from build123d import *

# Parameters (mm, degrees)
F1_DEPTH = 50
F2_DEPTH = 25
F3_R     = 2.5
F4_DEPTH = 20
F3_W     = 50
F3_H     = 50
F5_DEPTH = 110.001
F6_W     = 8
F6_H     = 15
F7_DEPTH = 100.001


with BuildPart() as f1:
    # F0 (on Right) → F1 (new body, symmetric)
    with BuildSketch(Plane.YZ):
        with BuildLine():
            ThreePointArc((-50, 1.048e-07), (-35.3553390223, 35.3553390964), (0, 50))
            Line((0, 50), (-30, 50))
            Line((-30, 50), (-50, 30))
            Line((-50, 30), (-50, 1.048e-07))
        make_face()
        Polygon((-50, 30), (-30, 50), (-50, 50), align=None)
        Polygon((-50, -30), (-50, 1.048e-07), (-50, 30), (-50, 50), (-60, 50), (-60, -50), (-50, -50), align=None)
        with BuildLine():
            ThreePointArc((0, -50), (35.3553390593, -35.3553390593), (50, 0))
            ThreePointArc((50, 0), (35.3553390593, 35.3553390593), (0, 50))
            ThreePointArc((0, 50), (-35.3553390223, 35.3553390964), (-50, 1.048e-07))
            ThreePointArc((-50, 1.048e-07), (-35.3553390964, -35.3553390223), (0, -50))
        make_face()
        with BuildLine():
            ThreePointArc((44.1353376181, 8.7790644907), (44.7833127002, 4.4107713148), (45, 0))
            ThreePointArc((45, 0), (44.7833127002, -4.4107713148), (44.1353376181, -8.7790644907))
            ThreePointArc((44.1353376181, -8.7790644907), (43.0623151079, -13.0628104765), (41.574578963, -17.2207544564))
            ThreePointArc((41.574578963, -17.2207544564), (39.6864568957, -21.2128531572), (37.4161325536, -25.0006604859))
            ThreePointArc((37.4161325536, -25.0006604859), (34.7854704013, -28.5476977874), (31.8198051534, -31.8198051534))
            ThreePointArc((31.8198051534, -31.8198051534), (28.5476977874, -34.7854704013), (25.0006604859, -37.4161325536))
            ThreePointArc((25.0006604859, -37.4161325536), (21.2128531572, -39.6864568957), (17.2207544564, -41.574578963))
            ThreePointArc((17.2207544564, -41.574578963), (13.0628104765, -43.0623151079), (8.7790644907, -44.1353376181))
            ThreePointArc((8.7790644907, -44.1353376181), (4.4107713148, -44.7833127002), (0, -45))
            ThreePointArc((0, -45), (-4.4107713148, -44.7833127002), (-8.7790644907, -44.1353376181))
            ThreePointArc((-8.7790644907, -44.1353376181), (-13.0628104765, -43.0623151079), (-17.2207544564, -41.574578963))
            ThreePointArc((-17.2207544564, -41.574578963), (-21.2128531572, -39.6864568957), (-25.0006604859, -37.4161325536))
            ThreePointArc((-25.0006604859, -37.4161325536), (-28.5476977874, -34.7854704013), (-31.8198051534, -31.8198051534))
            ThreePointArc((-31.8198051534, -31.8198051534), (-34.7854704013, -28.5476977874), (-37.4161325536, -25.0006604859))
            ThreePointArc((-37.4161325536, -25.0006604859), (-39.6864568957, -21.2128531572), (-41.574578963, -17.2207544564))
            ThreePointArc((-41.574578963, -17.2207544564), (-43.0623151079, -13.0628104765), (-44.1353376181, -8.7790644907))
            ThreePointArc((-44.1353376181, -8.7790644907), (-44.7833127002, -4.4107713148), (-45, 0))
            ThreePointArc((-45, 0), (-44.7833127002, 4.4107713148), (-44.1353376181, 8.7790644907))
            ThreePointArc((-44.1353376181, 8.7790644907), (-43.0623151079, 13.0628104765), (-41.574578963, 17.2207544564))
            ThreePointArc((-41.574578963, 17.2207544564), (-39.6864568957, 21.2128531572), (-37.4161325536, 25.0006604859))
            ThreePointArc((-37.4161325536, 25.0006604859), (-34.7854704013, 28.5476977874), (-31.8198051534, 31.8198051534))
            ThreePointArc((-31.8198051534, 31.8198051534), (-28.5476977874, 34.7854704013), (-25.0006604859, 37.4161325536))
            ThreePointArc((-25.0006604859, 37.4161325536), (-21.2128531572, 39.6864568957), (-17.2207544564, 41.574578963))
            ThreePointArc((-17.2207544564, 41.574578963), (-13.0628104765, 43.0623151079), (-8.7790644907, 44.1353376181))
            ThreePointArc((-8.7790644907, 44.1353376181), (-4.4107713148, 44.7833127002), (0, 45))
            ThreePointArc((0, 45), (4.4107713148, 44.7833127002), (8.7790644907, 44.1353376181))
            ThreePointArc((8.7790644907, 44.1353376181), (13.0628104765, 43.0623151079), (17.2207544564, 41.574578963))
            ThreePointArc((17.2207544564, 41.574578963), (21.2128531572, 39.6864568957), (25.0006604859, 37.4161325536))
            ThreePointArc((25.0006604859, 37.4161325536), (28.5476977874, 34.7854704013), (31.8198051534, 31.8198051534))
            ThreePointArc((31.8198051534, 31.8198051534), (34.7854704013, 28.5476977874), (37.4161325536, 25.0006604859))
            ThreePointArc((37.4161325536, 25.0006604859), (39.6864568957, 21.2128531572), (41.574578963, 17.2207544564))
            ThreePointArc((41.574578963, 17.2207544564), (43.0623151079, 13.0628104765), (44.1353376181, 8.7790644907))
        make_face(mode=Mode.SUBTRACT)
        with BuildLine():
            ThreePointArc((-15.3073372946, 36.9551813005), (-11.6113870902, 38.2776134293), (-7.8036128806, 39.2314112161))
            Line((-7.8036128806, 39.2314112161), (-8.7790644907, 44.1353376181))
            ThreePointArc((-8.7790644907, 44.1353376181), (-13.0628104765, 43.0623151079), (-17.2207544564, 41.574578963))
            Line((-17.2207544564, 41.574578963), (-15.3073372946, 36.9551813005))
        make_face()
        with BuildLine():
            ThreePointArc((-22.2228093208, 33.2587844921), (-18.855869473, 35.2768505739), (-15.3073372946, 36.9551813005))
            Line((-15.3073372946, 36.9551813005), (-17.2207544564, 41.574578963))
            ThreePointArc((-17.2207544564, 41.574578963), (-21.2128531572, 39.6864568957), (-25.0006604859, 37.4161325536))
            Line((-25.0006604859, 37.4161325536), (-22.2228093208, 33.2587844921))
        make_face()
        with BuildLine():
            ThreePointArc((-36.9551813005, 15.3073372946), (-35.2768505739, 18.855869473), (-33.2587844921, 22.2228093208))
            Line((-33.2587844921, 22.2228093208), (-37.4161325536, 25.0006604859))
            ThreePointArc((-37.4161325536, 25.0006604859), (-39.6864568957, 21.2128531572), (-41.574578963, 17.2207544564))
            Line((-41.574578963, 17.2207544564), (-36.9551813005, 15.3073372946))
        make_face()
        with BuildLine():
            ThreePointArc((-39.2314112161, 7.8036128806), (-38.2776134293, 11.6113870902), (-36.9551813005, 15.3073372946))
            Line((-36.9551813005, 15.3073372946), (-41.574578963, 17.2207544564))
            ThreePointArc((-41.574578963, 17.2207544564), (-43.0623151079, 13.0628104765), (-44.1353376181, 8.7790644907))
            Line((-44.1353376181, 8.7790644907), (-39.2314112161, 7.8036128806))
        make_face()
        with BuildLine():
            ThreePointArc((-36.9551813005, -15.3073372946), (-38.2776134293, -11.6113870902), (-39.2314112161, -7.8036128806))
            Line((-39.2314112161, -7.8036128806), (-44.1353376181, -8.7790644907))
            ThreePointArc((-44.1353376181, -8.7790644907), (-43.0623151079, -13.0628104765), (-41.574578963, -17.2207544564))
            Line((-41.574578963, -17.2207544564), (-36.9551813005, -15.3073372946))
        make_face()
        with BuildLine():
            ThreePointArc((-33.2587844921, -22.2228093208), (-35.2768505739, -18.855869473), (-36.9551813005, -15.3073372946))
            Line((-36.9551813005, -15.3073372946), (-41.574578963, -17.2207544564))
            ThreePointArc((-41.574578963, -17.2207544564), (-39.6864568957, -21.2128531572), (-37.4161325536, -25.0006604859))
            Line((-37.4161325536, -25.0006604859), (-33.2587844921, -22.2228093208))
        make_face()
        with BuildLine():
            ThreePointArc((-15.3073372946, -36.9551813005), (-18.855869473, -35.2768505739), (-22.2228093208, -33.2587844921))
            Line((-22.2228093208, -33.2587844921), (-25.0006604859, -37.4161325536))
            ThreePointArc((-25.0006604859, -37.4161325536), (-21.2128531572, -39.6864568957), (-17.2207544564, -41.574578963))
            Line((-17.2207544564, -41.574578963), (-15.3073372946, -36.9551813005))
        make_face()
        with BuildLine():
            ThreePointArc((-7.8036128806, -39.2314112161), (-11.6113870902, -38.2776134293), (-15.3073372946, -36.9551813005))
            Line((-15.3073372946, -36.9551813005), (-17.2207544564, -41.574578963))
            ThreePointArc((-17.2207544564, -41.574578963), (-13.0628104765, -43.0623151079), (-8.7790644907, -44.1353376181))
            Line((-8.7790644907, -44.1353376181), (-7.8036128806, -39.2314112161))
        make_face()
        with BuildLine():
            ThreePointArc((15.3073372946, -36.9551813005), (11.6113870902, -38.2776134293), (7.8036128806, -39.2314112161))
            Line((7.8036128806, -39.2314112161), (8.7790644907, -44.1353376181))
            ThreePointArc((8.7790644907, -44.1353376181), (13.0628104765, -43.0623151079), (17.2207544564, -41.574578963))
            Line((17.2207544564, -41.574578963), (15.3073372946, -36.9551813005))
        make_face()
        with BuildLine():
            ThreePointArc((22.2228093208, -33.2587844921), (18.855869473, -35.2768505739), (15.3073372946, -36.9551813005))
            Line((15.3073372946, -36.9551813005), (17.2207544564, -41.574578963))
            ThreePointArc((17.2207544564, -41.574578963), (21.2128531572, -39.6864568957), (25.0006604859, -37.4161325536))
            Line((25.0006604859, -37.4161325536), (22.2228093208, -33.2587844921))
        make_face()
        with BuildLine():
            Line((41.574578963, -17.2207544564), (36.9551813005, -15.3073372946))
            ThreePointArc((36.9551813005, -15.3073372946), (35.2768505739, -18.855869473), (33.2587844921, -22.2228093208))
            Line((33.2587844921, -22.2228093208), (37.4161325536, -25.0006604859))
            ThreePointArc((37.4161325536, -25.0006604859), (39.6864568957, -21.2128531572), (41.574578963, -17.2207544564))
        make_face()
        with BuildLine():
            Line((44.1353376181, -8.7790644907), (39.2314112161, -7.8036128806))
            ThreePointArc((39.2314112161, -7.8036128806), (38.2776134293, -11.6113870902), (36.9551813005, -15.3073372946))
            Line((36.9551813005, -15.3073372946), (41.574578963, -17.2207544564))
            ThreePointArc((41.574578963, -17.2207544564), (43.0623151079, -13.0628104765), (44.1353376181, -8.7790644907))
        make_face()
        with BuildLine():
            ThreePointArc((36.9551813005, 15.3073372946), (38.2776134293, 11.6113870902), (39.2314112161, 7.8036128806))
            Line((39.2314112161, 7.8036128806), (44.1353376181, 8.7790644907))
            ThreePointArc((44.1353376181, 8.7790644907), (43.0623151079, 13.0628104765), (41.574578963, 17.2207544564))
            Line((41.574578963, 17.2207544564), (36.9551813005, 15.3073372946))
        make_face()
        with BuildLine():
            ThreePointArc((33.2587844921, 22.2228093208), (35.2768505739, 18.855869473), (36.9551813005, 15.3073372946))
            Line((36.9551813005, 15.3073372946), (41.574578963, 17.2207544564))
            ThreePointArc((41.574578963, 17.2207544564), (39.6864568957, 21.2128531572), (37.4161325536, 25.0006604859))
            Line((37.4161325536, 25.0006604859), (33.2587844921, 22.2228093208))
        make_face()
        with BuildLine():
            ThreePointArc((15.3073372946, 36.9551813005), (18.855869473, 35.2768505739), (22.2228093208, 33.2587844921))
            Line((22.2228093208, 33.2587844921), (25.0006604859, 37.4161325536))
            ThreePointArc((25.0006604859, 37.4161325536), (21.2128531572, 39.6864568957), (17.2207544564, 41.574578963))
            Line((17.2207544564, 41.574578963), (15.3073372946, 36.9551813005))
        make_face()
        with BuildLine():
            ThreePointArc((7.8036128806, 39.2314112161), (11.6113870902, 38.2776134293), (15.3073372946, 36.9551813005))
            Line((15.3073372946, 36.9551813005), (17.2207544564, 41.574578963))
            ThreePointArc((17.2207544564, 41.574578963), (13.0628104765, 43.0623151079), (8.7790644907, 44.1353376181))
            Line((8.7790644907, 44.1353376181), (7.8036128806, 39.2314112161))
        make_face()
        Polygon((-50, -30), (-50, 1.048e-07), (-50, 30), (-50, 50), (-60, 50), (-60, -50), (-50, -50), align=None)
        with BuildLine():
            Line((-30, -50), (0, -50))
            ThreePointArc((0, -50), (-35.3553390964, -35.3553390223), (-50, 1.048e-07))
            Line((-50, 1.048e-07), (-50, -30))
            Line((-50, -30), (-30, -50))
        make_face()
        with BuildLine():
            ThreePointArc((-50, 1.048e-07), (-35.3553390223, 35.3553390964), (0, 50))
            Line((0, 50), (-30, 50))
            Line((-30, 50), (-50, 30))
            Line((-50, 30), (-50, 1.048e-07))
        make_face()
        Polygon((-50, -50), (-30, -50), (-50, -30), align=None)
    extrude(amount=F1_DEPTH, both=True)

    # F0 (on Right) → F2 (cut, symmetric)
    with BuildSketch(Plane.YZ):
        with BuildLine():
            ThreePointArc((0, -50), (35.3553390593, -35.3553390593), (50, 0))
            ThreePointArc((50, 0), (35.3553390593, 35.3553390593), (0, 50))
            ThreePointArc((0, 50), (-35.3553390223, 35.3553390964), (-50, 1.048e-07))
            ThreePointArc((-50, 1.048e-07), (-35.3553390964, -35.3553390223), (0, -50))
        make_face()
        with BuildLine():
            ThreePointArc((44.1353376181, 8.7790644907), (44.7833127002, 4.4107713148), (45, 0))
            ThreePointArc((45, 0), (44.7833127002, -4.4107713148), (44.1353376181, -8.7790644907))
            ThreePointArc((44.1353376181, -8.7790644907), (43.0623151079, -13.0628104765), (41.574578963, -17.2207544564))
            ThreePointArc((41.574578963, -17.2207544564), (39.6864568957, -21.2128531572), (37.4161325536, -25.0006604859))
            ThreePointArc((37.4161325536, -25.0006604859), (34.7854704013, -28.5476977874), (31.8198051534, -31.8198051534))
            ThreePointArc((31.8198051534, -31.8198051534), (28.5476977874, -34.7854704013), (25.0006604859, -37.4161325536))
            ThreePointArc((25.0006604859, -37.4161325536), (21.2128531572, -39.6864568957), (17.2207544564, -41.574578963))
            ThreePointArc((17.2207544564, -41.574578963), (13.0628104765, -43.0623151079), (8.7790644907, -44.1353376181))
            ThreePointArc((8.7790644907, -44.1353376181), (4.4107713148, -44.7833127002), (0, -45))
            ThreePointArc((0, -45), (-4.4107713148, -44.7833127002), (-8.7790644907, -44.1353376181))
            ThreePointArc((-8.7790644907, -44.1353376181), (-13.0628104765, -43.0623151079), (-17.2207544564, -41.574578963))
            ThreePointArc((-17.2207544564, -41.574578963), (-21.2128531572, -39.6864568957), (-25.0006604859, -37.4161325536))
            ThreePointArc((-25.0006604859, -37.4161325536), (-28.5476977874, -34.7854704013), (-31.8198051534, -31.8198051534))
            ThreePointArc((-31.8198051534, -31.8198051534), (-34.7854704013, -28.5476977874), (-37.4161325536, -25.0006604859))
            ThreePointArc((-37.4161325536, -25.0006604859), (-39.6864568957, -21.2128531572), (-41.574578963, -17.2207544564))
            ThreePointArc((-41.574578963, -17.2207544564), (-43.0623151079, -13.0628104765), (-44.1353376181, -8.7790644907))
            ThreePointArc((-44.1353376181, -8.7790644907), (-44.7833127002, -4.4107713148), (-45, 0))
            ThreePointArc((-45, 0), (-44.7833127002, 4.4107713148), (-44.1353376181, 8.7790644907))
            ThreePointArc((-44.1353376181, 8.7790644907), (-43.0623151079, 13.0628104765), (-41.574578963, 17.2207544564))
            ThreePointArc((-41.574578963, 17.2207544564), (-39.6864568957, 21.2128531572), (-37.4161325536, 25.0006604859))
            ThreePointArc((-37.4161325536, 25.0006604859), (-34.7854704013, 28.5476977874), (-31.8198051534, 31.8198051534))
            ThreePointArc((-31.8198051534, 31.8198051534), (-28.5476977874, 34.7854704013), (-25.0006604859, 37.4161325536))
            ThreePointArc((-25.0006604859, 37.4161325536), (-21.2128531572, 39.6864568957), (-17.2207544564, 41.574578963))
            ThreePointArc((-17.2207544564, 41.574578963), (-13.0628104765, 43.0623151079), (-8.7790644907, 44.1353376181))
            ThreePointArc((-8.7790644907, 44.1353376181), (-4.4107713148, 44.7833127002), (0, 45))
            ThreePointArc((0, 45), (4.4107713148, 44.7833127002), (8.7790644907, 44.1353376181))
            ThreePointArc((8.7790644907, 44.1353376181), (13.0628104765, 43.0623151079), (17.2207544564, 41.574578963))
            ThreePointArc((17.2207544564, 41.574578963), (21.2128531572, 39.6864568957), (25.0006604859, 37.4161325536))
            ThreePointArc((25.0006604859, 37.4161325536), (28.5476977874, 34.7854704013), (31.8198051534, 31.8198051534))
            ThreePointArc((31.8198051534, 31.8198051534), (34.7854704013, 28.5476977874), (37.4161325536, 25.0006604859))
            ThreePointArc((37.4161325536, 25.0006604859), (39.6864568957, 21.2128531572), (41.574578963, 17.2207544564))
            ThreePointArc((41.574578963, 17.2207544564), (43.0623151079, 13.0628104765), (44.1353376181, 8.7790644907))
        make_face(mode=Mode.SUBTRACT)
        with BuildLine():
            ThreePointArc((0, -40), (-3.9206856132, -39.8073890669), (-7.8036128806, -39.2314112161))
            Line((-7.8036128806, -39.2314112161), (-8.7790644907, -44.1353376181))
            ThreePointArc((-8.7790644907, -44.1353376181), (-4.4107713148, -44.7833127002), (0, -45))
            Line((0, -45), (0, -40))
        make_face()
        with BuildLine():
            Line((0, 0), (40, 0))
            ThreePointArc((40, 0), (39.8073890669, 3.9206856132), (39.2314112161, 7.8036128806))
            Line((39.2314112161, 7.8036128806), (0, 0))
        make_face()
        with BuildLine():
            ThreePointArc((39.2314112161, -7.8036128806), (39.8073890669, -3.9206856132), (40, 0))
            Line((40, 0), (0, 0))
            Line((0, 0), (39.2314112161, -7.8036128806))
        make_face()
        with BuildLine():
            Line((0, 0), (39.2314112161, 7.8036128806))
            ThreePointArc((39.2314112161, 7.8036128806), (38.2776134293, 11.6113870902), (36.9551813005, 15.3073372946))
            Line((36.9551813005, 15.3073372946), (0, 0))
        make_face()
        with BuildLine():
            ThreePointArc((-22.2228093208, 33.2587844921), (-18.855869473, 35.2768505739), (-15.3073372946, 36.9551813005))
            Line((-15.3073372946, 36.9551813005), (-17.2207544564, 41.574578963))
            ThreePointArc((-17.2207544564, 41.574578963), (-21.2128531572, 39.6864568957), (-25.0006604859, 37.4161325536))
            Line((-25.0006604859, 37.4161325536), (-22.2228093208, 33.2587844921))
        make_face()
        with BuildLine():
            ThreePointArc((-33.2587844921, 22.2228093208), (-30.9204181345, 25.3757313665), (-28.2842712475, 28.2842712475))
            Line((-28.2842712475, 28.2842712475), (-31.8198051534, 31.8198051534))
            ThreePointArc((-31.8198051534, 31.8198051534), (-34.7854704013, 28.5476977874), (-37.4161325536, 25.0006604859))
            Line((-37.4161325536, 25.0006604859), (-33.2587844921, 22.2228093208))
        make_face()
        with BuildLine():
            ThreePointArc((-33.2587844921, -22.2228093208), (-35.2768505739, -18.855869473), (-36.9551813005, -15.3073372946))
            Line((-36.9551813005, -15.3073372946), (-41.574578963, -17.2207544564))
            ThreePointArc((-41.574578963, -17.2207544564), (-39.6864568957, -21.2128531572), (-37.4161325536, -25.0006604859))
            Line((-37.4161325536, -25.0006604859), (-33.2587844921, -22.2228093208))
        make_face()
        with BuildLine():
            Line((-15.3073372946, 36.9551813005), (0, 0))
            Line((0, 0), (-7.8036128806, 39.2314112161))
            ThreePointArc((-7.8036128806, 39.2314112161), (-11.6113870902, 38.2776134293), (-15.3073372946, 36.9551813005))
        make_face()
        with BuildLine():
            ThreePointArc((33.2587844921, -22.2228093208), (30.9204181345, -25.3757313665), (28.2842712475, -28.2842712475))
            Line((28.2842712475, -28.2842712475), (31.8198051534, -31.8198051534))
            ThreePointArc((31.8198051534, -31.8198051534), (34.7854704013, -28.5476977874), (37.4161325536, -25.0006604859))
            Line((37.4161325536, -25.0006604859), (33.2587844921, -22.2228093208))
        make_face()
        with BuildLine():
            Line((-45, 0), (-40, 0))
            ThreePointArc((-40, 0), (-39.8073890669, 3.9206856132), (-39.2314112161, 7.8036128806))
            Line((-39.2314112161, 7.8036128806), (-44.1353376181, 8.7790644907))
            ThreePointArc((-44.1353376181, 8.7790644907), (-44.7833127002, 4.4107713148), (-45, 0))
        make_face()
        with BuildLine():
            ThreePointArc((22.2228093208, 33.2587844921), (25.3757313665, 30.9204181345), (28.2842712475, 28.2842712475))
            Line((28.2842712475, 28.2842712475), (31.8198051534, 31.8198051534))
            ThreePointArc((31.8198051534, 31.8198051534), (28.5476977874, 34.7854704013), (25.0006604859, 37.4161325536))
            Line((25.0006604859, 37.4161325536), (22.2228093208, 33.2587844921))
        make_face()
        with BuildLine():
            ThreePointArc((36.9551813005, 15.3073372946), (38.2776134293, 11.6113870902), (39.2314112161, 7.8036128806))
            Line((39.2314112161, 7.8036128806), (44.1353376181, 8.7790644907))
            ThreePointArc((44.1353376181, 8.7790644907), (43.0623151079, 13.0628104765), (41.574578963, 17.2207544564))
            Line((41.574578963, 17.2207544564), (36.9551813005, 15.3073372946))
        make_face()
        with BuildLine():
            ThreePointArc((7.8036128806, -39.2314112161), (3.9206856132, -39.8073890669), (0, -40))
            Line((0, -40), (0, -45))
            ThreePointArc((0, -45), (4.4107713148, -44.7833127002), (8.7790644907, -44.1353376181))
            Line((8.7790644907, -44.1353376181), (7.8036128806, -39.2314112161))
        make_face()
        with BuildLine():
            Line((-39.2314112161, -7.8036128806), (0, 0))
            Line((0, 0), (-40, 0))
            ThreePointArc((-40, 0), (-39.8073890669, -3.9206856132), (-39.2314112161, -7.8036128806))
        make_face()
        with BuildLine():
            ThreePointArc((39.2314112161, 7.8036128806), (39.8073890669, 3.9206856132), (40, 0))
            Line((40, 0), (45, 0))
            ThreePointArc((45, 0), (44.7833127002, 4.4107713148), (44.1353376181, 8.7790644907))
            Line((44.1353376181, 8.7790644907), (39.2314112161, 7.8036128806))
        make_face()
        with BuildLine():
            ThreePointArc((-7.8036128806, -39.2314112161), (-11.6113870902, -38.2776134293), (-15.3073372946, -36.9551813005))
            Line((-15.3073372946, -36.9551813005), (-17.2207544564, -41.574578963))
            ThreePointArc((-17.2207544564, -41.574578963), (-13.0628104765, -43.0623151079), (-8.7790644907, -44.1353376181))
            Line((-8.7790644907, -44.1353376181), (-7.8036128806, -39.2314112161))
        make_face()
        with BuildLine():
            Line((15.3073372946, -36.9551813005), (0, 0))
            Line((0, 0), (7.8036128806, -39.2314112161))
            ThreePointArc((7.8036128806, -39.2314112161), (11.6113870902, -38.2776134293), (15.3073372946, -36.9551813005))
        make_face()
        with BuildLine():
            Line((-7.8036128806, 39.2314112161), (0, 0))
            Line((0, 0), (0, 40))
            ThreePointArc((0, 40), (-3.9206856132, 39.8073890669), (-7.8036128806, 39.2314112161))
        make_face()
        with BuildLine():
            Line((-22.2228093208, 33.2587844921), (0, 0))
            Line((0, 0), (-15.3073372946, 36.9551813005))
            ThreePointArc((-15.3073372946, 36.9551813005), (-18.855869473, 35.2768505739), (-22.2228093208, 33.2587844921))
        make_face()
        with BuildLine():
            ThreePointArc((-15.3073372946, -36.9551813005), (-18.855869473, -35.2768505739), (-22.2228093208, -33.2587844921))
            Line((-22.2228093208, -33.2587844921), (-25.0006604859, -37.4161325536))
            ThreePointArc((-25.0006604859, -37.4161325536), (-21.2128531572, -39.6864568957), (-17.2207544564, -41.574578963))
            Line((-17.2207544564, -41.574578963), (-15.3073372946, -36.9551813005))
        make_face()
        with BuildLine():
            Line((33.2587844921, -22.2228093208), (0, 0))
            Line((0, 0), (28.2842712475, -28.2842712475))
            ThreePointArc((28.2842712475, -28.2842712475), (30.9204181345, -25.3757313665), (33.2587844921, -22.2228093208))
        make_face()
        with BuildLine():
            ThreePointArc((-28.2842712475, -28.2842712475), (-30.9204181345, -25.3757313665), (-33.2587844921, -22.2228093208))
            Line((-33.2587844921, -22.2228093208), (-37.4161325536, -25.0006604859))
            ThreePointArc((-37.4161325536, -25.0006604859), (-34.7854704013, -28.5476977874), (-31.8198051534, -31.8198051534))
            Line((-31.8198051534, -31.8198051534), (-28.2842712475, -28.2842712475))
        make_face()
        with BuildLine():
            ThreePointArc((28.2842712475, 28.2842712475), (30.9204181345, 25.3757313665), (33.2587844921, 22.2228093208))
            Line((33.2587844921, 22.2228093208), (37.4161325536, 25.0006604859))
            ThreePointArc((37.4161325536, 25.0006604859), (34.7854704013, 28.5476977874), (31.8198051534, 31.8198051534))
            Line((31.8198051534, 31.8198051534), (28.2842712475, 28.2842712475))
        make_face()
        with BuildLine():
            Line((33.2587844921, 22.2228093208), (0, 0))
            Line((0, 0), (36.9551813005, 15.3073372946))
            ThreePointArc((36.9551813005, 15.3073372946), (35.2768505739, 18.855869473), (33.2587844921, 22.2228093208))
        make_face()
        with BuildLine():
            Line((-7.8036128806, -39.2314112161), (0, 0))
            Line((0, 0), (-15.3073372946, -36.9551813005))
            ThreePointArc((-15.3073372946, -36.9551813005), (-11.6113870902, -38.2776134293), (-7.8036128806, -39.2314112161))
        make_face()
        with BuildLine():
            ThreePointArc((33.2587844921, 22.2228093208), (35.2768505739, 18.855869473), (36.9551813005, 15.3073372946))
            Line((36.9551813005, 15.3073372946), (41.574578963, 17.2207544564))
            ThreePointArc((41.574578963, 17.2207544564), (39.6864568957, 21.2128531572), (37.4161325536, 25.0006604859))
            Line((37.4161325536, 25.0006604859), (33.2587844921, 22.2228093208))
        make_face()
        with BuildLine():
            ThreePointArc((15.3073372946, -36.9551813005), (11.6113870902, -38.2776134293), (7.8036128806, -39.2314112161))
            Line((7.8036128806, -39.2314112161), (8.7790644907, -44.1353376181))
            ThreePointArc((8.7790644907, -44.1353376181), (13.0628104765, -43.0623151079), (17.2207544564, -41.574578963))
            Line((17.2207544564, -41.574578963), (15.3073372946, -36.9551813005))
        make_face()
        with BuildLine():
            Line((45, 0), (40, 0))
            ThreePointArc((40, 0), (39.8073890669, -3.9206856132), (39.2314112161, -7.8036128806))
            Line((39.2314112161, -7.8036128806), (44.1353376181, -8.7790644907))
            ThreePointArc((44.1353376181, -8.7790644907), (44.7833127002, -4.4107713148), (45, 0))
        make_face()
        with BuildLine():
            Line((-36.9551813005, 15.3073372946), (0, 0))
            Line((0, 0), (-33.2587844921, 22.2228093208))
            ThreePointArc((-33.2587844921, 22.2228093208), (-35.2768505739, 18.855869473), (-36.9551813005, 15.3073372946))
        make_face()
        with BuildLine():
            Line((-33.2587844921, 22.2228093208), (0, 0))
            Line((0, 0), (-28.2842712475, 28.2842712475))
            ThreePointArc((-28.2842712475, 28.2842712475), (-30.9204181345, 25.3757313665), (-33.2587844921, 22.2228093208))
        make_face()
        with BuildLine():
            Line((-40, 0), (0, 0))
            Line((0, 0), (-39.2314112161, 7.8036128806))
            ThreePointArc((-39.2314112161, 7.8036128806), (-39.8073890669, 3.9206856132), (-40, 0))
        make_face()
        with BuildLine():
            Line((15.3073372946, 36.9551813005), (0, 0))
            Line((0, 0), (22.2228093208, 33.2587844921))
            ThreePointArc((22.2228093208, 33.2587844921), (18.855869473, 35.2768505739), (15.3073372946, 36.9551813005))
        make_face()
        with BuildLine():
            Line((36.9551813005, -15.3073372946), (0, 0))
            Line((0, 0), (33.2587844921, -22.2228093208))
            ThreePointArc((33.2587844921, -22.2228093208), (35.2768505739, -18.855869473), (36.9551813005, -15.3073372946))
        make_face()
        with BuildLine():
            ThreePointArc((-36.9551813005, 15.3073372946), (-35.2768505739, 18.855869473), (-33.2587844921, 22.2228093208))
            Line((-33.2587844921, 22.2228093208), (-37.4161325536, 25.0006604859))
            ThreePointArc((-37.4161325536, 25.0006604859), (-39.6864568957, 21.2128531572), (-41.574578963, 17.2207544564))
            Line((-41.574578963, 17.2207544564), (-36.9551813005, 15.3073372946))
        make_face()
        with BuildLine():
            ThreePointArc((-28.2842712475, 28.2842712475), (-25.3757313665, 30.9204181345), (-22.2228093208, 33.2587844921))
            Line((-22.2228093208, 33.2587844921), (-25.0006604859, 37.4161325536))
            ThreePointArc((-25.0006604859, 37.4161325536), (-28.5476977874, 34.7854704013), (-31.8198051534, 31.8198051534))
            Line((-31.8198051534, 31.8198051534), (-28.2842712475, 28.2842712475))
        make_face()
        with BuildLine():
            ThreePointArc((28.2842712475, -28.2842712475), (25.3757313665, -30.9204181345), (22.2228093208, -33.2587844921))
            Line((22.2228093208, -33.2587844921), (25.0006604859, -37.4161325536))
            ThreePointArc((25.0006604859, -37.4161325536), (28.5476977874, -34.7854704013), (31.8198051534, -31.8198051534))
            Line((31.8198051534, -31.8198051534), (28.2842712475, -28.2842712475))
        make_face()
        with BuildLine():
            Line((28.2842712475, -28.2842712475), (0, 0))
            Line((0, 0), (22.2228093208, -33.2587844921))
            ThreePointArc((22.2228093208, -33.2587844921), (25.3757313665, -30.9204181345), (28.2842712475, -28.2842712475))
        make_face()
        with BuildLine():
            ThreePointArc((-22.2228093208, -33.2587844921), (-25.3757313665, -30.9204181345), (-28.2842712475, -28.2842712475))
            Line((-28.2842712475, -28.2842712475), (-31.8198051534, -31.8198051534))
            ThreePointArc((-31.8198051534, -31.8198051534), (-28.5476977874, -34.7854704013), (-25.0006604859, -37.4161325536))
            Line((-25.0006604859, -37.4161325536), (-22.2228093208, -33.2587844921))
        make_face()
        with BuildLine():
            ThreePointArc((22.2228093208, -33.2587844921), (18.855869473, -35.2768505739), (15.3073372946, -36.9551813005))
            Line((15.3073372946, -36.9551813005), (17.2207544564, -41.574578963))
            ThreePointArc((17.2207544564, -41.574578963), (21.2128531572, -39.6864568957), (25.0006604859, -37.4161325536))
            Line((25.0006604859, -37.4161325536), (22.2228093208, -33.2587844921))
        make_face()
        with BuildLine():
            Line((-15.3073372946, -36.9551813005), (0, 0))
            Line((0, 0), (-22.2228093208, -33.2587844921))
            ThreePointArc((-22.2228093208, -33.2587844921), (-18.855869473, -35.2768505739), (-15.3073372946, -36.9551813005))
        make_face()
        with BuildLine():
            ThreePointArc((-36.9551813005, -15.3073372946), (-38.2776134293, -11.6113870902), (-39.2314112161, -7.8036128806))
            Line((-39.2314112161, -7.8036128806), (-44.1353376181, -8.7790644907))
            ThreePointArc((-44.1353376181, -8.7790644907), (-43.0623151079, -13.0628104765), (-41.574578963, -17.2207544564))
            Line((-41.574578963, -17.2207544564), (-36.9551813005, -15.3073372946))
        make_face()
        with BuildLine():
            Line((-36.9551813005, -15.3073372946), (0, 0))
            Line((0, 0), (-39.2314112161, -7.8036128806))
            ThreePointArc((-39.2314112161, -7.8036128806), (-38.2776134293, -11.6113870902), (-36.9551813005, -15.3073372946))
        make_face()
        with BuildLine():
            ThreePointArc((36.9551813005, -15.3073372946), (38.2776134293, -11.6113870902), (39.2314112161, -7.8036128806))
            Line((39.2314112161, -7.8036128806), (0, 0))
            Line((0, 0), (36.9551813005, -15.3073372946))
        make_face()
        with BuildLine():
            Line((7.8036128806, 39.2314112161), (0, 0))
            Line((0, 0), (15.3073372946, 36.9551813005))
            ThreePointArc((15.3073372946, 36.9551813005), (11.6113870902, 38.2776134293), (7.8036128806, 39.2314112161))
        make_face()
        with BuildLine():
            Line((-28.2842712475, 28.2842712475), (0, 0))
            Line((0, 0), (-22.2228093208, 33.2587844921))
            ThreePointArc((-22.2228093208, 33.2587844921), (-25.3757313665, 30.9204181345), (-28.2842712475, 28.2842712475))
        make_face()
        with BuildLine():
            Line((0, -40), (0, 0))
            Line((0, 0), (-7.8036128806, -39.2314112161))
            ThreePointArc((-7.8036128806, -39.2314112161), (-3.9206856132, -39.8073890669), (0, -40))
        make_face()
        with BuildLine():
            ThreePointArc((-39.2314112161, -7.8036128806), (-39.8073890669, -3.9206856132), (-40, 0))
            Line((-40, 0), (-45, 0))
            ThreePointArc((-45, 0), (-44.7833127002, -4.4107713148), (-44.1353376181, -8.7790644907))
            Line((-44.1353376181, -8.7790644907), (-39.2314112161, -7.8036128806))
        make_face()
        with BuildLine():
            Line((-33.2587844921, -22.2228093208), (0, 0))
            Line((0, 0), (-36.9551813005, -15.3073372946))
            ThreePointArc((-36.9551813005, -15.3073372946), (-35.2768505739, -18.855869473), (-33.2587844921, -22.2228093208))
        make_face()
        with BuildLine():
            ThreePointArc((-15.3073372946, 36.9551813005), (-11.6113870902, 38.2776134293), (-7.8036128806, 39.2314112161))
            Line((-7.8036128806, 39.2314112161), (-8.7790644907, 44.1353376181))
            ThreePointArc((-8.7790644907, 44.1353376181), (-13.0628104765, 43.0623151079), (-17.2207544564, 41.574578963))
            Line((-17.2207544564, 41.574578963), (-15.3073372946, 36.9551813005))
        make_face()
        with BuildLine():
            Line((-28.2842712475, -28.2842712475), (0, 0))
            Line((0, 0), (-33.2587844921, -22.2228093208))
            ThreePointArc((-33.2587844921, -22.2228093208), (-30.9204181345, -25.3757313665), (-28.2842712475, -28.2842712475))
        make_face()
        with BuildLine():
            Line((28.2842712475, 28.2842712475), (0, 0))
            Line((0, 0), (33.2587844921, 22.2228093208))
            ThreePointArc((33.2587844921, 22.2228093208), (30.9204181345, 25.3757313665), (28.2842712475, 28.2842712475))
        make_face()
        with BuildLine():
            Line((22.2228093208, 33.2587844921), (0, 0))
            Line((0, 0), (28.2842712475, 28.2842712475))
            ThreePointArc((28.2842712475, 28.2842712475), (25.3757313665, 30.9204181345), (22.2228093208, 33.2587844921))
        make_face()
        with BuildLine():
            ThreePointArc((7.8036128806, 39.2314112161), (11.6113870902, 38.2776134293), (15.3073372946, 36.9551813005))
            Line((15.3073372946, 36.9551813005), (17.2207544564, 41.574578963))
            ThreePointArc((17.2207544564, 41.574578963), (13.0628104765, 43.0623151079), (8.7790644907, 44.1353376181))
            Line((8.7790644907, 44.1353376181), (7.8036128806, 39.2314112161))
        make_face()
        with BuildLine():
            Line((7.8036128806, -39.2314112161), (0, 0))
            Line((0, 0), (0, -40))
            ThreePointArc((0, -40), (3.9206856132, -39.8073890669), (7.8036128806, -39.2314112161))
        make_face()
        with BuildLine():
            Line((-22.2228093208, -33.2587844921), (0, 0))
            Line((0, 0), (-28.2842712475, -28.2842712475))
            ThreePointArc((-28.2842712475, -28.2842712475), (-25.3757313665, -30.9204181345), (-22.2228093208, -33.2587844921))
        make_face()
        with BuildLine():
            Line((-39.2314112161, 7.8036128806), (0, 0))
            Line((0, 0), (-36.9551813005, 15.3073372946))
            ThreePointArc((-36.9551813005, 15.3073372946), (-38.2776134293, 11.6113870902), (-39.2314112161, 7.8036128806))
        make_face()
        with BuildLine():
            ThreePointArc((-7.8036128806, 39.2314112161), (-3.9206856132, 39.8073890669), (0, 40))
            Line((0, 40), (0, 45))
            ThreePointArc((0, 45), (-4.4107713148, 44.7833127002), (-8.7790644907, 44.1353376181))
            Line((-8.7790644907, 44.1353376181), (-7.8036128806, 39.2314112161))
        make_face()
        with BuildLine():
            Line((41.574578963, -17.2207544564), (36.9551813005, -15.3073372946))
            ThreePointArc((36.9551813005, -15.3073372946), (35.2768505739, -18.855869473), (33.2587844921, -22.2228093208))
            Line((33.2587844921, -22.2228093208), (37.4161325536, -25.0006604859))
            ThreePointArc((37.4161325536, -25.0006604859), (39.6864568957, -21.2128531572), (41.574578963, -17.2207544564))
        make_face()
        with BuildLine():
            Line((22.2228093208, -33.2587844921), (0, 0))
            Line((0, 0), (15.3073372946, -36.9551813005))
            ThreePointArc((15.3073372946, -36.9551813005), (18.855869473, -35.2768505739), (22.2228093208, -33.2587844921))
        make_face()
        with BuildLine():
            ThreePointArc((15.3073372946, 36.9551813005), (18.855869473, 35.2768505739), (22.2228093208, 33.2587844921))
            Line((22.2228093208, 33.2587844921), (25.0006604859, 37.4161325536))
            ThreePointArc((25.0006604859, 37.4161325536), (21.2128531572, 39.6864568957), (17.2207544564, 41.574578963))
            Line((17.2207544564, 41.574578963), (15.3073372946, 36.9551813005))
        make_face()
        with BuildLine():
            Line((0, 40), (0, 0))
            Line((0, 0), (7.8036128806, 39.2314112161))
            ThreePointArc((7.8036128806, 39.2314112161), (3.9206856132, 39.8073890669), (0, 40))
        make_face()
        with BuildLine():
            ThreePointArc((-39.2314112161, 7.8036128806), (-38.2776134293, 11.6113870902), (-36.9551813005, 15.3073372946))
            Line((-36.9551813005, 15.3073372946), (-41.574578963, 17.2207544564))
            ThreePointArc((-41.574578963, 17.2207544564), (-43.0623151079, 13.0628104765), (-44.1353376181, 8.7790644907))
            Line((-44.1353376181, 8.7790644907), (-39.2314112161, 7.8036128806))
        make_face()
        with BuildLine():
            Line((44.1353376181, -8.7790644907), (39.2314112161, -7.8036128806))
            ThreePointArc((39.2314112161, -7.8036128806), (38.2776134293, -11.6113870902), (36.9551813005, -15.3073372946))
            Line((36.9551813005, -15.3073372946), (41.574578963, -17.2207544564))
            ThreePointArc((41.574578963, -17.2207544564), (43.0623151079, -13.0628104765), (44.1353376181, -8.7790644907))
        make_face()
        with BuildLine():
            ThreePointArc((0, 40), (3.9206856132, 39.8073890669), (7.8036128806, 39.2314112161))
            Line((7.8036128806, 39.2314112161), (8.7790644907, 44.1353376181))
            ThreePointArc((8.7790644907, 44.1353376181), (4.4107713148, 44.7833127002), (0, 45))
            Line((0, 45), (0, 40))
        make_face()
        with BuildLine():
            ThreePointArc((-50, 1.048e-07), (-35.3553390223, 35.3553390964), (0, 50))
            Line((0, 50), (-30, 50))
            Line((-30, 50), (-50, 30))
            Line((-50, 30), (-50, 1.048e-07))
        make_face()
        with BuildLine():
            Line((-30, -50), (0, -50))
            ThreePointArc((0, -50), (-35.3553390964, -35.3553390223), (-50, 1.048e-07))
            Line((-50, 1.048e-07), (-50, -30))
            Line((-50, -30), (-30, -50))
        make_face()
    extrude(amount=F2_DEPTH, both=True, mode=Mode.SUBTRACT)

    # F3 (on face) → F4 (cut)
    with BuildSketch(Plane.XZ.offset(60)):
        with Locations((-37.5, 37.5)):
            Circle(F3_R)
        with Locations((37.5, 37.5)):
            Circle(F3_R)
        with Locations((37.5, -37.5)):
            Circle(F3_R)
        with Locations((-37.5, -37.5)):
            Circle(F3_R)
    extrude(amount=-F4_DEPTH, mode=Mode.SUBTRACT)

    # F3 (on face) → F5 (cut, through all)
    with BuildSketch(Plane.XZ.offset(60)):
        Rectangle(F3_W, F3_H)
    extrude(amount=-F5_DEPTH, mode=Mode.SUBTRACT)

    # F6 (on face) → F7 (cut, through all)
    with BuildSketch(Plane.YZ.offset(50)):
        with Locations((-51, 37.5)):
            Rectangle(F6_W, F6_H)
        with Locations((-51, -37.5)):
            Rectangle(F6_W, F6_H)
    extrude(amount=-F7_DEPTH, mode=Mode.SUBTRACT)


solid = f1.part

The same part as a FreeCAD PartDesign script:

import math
import FreeCAD as App
import Part
import Sketcher
from FreeCAD import Vector
Q = App.Units.Quantity

doc = App.newDocument("Part")
body = doc.addObject("PartDesign::Body", "Body")

# Sketch on YZ plane
sketch1 = body.newObject("Sketcher::SketchObject", "Sketch")
sketch1.AttachmentSupport = (doc.getObject("YZ_Plane"), [""])
sketch1.MapMode = "FlatFace"
sketch1.addGeometry([
    Part.ArcOfCircle(Part.Circle(Vector(0, 0, 0), Vector(0, 0, 1), 50), math.radians(-90), math.radians(90)),  # 0
    Part.LineSegment(Vector(0, 50, 0), Vector(-60, 50, 0)),  # 1
    Part.LineSegment(Vector(-60, 50, 0), Vector(-60, -50, 0)),  # 2
    Part.LineSegment(Vector(-60, -50, 0), Vector(0, -50, 0)),  # 3
    Part.ArcOfCircle(Part.Circle(Vector(0, 0, 0), Vector(0, 0, 1), 45), math.radians(0), math.radians(11.25)),  # 4
    Part.ArcOfCircle(Part.Circle(Vector(0, 0, 0), Vector(0, 0, 1), 45), math.radians(-11.25), math.radians(0)),  # 5
    Part.LineSegment(Vector(44.135338, -8.779064, 0), Vector(39.231411, -7.803613, 0)),  # 6
    Part.ArcOfCircle(Part.Circle(Vector(0, 0, 0), Vector(0, 0, 1), 40), math.radians(-22.5), math.radians(-11.25)),  # 7
    Part.ArcOfCircle(Part.Circle(Vector(0, 0, 0), Vector(0, 0, 1), 40), math.radians(-33.75), math.radians(-22.5)),  # 8
    Part.LineSegment(Vector(33.258784, -22.222809, 0), Vector(37.416133, -25.00066, 0)),  # 9
    Part.ArcOfCircle(Part.Circle(Vector(0, 0, 0), Vector(0, 0, 1), 45), math.radians(-56.25), math.radians(-33.75)),  # 10
    Part.LineSegment(Vector(25.00066, -37.416133, 0), Vector(22.222809, -33.258784, 0)),  # 11
    Part.ArcOfCircle(Part.Circle(Vector(0, 0, 0), Vector(0, 0, 1), 40), math.radians(-67.5), math.radians(-56.25)),  # 12
    Part.ArcOfCircle(Part.Circle(Vector(0, 0, 0), Vector(0, 0, 1), 40), math.radians(-78.75), math.radians(-67.5)),  # 13
    Part.LineSegment(Vector(7.803613, -39.231411, 0), Vector(8.779064, -44.135338, 0)),  # 14
    Part.ArcOfCircle(Part.Circle(Vector(0, 0, 0), Vector(0, 0, 1), 45), math.radians(-90), math.radians(-78.75)),  # 15
    Part.ArcOfCircle(Part.Circle(Vector(0, 0, 0), Vector(0, 0, 1), 45), math.radians(-101.25), math.radians(-90)),  # 16
    Part.LineSegment(Vector(-8.779064, -44.135338, 0), Vector(-7.803613, -39.231411, 0)),  # 17
    Part.ArcOfCircle(Part.Circle(Vector(0, 0, 0), Vector(0, 0, 1), 40), math.radians(-112.5), math.radians(-101.25)),  # 18
    Part.ArcOfCircle(Part.Circle(Vector(0, 0, 0), Vector(0, 0, 1), 40), math.radians(-123.75), math.radians(-112.5)),  # 19
    Part.LineSegment(Vector(-22.222809, -33.258784, 0), Vector(-25.00066, -37.416133, 0)),  # 20
    Part.ArcOfCircle(Part.Circle(Vector(0, 0, 0), Vector(0, 0, 1), 45), math.radians(-146.25), math.radians(-123.75)),  # 21
    Part.LineSegment(Vector(-37.416133, -25.00066, 0), Vector(-33.258784, -22.222809, 0)),  # 22
    Part.ArcOfCircle(Part.Circle(Vector(0, 0, 0), Vector(0, 0, 1), 40), math.radians(-157.5), math.radians(-146.25)),  # 23
    Part.ArcOfCircle(Part.Circle(Vector(0, 0, 0), Vector(0, 0, 1), 40), math.radians(-168.75), math.radians(-157.5)),  # 24
    Part.LineSegment(Vector(-39.231411, -7.803613, 0), Vector(-44.135338, -8.779064, 0)),  # 25
    Part.ArcOfCircle(Part.Circle(Vector(0, 0, 0), Vector(0, 0, 1), 45), math.radians(-180), math.radians(-168.75)),  # 26
    Part.ArcOfCircle(Part.Circle(Vector(0, 0, 0), Vector(0, 0, 1), 45), math.radians(168.75), math.radians(180)),  # 27
    Part.LineSegment(Vector(-44.135338, 8.779064, 0), Vector(-39.231411, 7.803613, 0)),  # 28
    Part.ArcOfCircle(Part.Circle(Vector(0, 0, 0), Vector(0, 0, 1), 40), math.radians(157.5), math.radians(168.75)),  # 29
    Part.ArcOfCircle(Part.Circle(Vector(0, 0, 0), Vector(0, 0, 1), 40), math.radians(146.25), math.radians(157.5)),  # 30
    Part.LineSegment(Vector(-33.258784, 22.222809, 0), Vector(-37.416133, 25.00066, 0)),  # 31
    Part.ArcOfCircle(Part.Circle(Vector(0, 0, 0), Vector(0, 0, 1), 45), math.radians(123.75), math.radians(146.25)),  # 32
    Part.LineSegment(Vector(-25.00066, 37.416133, 0), Vector(-22.222809, 33.258784, 0)),  # 33
    Part.ArcOfCircle(Part.Circle(Vector(0, 0, 0), Vector(0, 0, 1), 40), math.radians(112.5), math.radians(123.75)),  # 34
    Part.ArcOfCircle(Part.Circle(Vector(0, 0, 0), Vector(0, 0, 1), 40), math.radians(101.25), math.radians(112.5)),  # 35
    Part.LineSegment(Vector(-7.803613, 39.231411, 0), Vector(-8.779064, 44.135338, 0)),  # 36
    Part.ArcOfCircle(Part.Circle(Vector(0, 0, 0), Vector(0, 0, 1), 45), math.radians(90), math.radians(101.25)),  # 37
    Part.ArcOfCircle(Part.Circle(Vector(0, 0, 0), Vector(0, 0, 1), 45), math.radians(78.75), math.radians(90)),  # 38
    Part.LineSegment(Vector(8.779064, 44.135338, 0), Vector(7.803613, 39.231411, 0)),  # 39
    Part.ArcOfCircle(Part.Circle(Vector(0, 0, 0), Vector(0, 0, 1), 40), math.radians(67.5), math.radians(78.75)),  # 40
    Part.ArcOfCircle(Part.Circle(Vector(0, 0, 0), Vector(0, 0, 1), 40), math.radians(56.25), math.radians(67.5)),  # 41
    Part.LineSegment(Vector(22.222809, 33.258784, 0), Vector(25.00066, 37.416133, 0)),  # 42
    Part.ArcOfCircle(Part.Circle(Vector(0, 0, 0), Vector(0, 0, 1), 45), math.radians(33.75), math.radians(56.25)),  # 43
    Part.LineSegment(Vector(37.416133, 25.00066, 0), Vector(33.258784, 22.222809, 0)),  # 44
    Part.ArcOfCircle(Part.Circle(Vector(0, 0, 0), Vector(0, 0, 1), 40), math.radians(22.5), math.radians(33.75)),  # 45
    Part.ArcOfCircle(Part.Circle(Vector(0, 0, 0), Vector(0, 0, 1), 40), math.radians(11.25), math.radians(22.5)),  # 46
    Part.LineSegment(Vector(39.231411, 7.803613, 0), Vector(44.135338, 8.779064, 0)),  # 47
], False)
sketch1.addConstraint([
    Sketcher.Constraint("Tangent", 0, 2, 1, 1),
    Sketcher.Constraint("Coincident", 1, 2, 2, 1),
    Sketcher.Constraint("Coincident", 2, 2, 3, 1),
    Sketcher.Constraint("Tangent", 3, 2, 0, 1),
    Sketcher.Constraint("Tangent", 4, 1, 5, 2),
    Sketcher.Constraint("Coincident", 5, 1, 6, 1),
    Sketcher.Constraint("Coincident", 6, 2, 7, 2),
    Sketcher.Constraint("Tangent", 7, 1, 8, 2),
    Sketcher.Constraint("Coincident", 8, 1, 9, 1),
    Sketcher.Constraint("Coincident", 9, 2, 10, 2),
    Sketcher.Constraint("Coincident", 10, 1, 11, 1),
    Sketcher.Constraint("Coincident", 11, 2, 12, 2),
    Sketcher.Constraint("Tangent", 12, 1, 13, 2),
    Sketcher.Constraint("Coincident", 13, 1, 14, 1),
    Sketcher.Constraint("Coincident", 14, 2, 15, 2),
    Sketcher.Constraint("Tangent", 15, 1, 16, 2),
    Sketcher.Constraint("Coincident", 16, 1, 17, 1),
    Sketcher.Constraint("Coincident", 17, 2, 18, 2),
    Sketcher.Constraint("Tangent", 18, 1, 19, 2),
    Sketcher.Constraint("Coincident", 19, 1, 20, 1),
    Sketcher.Constraint("Coincident", 20, 2, 21, 2),
    Sketcher.Constraint("Coincident", 21, 1, 22, 1),
    Sketcher.Constraint("Coincident", 22, 2, 23, 2),
    Sketcher.Constraint("Tangent", 23, 1, 24, 2),
    Sketcher.Constraint("Coincident", 24, 1, 25, 1),
    Sketcher.Constraint("Coincident", 25, 2, 26, 2),
    Sketcher.Constraint("Tangent", 26, 1, 27, 2),
    Sketcher.Constraint("Coincident", 27, 1, 28, 1),
    Sketcher.Constraint("Coincident", 28, 2, 29, 2),
    Sketcher.Constraint("Tangent", 29, 1, 30, 2),
    Sketcher.Constraint("Coincident", 30, 1, 31, 1),
    Sketcher.Constraint("Coincident", 31, 2, 32, 2),
    Sketcher.Constraint("Coincident", 32, 1, 33, 1),
    Sketcher.Constraint("Coincident", 33, 2, 34, 2),
    Sketcher.Constraint("Tangent", 34, 1, 35, 2),
    Sketcher.Constraint("Coincident", 35, 1, 36, 1),
    Sketcher.Constraint("Coincident", 36, 2, 37, 2),
    Sketcher.Constraint("Tangent", 37, 1, 38, 2),
    Sketcher.Constraint("Coincident", 38, 1, 39, 1),
    Sketcher.Constraint("Coincident", 39, 2, 40, 2),
    Sketcher.Constraint("Tangent", 40, 1, 41, 2),
    Sketcher.Constraint("Coincident", 41, 1, 42, 1),
    Sketcher.Constraint("Coincident", 42, 2, 43, 2),
    Sketcher.Constraint("Coincident", 43, 1, 44, 1),
    Sketcher.Constraint("Coincident", 44, 2, 45, 2),
    Sketcher.Constraint("Tangent", 45, 1, 46, 2),
    Sketcher.Constraint("Coincident", 46, 1, 47, 1),
    Sketcher.Constraint("Coincident", 47, 2, 4, 2),
    Sketcher.Constraint("Horizontal", 1),
    Sketcher.Constraint("Vertical", 2),
    Sketcher.Constraint("Horizontal", 3),
    Sketcher.Constraint("Coincident", 0, 3, -1, 1),
    Sketcher.Constraint("Coincident", 4, 3, -1, 1),
    Sketcher.Constraint("Coincident", 7, 3, -1, 1),
    Sketcher.Constraint("Coincident", 10, 3, -1, 1),
    Sketcher.Constraint("Coincident", 12, 3, -1, 1),
    Sketcher.Constraint("Coincident", 15, 3, -1, 1),
    Sketcher.Constraint("Coincident", 18, 3, -1, 1),
    Sketcher.Constraint("Coincident", 21, 3, -1, 1),
    Sketcher.Constraint("Coincident", 23, 3, -1, 1),
    Sketcher.Constraint("Coincident", 26, 3, -1, 1),
    Sketcher.Constraint("Coincident", 29, 3, -1, 1),
    Sketcher.Constraint("Coincident", 32, 3, -1, 1),
    Sketcher.Constraint("Coincident", 34, 3, -1, 1),
    Sketcher.Constraint("Coincident", 37, 3, -1, 1),
    Sketcher.Constraint("Coincident", 40, 3, -1, 1),
    Sketcher.Constraint("Coincident", 43, 3, -1, 1),
    Sketcher.Constraint("Coincident", 45, 3, -1, 1),
    Sketcher.Constraint("Equal", 4, 5),
    Sketcher.Constraint("Equal", 7, 8),
    Sketcher.Constraint("Equal", 5, 10),
    Sketcher.Constraint("Equal", 8, 12),
    Sketcher.Constraint("Equal", 12, 13),
    Sketcher.Constraint("Equal", 10, 15),
    Sketcher.Constraint("Equal", 15, 16),
    Sketcher.Constraint("Equal", 13, 18),
    Sketcher.Constraint("Equal", 18, 19),
    Sketcher.Constraint("Equal", 16, 21),
    Sketcher.Constraint("Equal", 19, 23),
    Sketcher.Constraint("Equal", 23, 24),
    Sketcher.Constraint("Equal", 21, 26),
    Sketcher.Constraint("Equal", 26, 27),
    Sketcher.Constraint("Equal", 24, 29),
    Sketcher.Constraint("Equal", 29, 30),
    Sketcher.Constraint("Equal", 27, 32),
    Sketcher.Constraint("Equal", 30, 34),
    Sketcher.Constraint("Equal", 34, 35),
    Sketcher.Constraint("Equal", 32, 37),
    Sketcher.Constraint("Equal", 37, 38),
    Sketcher.Constraint("Equal", 35, 40),
    Sketcher.Constraint("Equal", 40, 41),
    Sketcher.Constraint("Equal", 38, 43),
    Sketcher.Constraint("Equal", 41, 45),
    Sketcher.Constraint("Equal", 45, 46),
    Sketcher.Constraint("PointOnObject", 4, 1, -1),
    Sketcher.Constraint("PointOnObject", 15, 1, -2),
    Sketcher.Constraint("PointOnObject", 26, 1, -1),
    Sketcher.Constraint("PointOnObject", 37, 1, -2),
    Sketcher.Constraint("Perpendicular", 6, 17),
    Sketcher.Constraint("Perpendicular", 9, 20),
    Sketcher.Constraint("Perpendicular", 11, 22),
    Sketcher.Constraint("Perpendicular", 14, 25),
    Sketcher.Constraint("Perpendicular", 17, 28),
    Sketcher.Constraint("Perpendicular", 20, 31),
    Sketcher.Constraint("Perpendicular", 22, 33),
    Sketcher.Constraint("Perpendicular", 25, 36),
    Sketcher.Constraint("Perpendicular", 28, 39),
    Sketcher.Constraint("Perpendicular", 31, 42),
    Sketcher.Constraint("Perpendicular", 33, 44),
    Sketcher.Constraint("Perpendicular", 36, 47),
    Sketcher.Constraint("Horizontal", 14, 2, 16, 1),
    Sketcher.Constraint("Horizontal", 13, 1, 17, 2),
    Sketcher.Constraint("Horizontal", 12, 1, 18, 1),
    Sketcher.Constraint("Horizontal", 11, 2, 19, 1),
    Sketcher.Constraint("Horizontal", 10, 1, 20, 2),
    Sketcher.Constraint("Horizontal", 9, 2, 21, 1),
    Sketcher.Constraint("Horizontal", 7, 1, 23, 1),
    Sketcher.Constraint("Horizontal", 6, 2, 24, 1),
    Sketcher.Constraint("Horizontal", 36, 2, 38, 1),
    Sketcher.Constraint("Horizontal", 34, 1, 40, 1),
    Sketcher.Constraint("Horizontal", 33, 2, 41, 1),
    Sketcher.Constraint("Horizontal", 31, 2, 43, 1),
    Sketcher.Constraint("Horizontal", 29, 1, 45, 1),
    Sketcher.Constraint("Horizontal", 28, 2, 46, 1),
    Sketcher.Constraint("Vertical", 25, 2, 27, 1),
    Sketcher.Constraint("Vertical", 23, 1, 29, 1),
    Sketcher.Constraint("Vertical", 22, 2, 30, 1),
    Sketcher.Constraint("Vertical", 20, 2, 32, 1),
    Sketcher.Constraint("Vertical", 18, 1, 34, 1),
    Sketcher.Constraint("Vertical", 17, 2, 35, 1),
    Sketcher.Constraint("Radius", 0, Q("50 mm")),
    Sketcher.Constraint("Radius", 4, Q("45 mm")),
    Sketcher.Constraint("Radius", 7, Q("40 mm")),
    Sketcher.Constraint("DistanceX", 1, 2, 1, 1, Q("60 mm")),
    Sketcher.Constraint("Angle", 6, Q("168.75 deg")),
    Sketcher.Constraint("Angle", 9, Q("-33.75 deg")),
    Sketcher.Constraint("DistanceX", -1, 1, 6, 2, Q("39.231411 mm")),
    Sketcher.Constraint("DistanceX", -1, 1, 7, 1, Q("36.955181 mm")),
    Sketcher.Constraint("DistanceY", 8, 1, -1, 1, Q("22.222809 mm")),
    Sketcher.Constraint("DistanceX", -1, 1, 10, 1, Q("25.00066 mm")),
    Sketcher.Constraint("DistanceY", 12, 1, -1, 1, Q("36.955181 mm")),
    Sketcher.Constraint("DistanceY", 13, 1, -1, 1, Q("39.231411 mm")),
])
pad1 = body.newObject("PartDesign::Pad", "Pad")
pad1.Profile = sketch1
pad1.Length = 100
pad1.Midplane = True

# Sketch on YZ plane
sketch2 = body.newObject("Sketcher::SketchObject", "Sketch001")
sketch2.AttachmentSupport = (doc.getObject("YZ_Plane"), [""])
sketch2.MapMode = "FlatFace"
sketch2.addGeometry([
    Part.LineSegment(Vector(0, 50, 0), Vector(-30, 50, 0)),  # 0
    Part.LineSegment(Vector(-30, 50, 0), Vector(-50, 30, 0)),  # 1
    Part.LineSegment(Vector(-50, 30, 0), Vector(-50, -30, 0)),  # 2
    Part.LineSegment(Vector(-50, -30, 0), Vector(-30, -50, 0)),  # 3
    Part.LineSegment(Vector(-30, -50, 0), Vector(0, -50, 0)),  # 4
    Part.ArcOfCircle(Part.Circle(Vector(0, 0, 0), Vector(0, 0, 1), 50), math.radians(-90), math.radians(90)),  # 5
], False)
sketch2.addConstraint([
    Sketcher.Constraint("Coincident", 0, 2, 1, 1),
    Sketcher.Constraint("Coincident", 1, 2, 2, 1),
    Sketcher.Constraint("Coincident", 2, 2, 3, 1),
    Sketcher.Constraint("Coincident", 3, 2, 4, 1),
    Sketcher.Constraint("Tangent", 4, 2, 5, 1),
    Sketcher.Constraint("Tangent", 5, 2, 0, 1),
    Sketcher.Constraint("Horizontal", 0),
    Sketcher.Constraint("Vertical", 2),
    Sketcher.Constraint("Horizontal", 4),
    Sketcher.Constraint("Coincident", 5, 3, -1, 1),
    Sketcher.Constraint("Perpendicular", 1, 3),
    Sketcher.Constraint("Vertical", 0, 2, 3, 2),
    Sketcher.Constraint("Equal", 1, 3),
    Sketcher.Constraint("Radius", 5, Q("50 mm")),
    Sketcher.Constraint("DistanceX", 0, 2, 0, 1, Q("30 mm")),
    Sketcher.Constraint("DistanceY", 2, 2, 2, 1, Q("60 mm")),
])
pocket1 = body.newObject("PartDesign::Pocket", "Pocket")
pocket1.Profile = sketch2
pocket1.Length = 50
pocket1.Midplane = True

# Sketch on XZ plane
sketch3 = body.newObject("Sketcher::SketchObject", "Sketch002")
sketch3.AttachmentSupport = (doc.getObject("XZ_Plane"), [""])
sketch3.MapMode = "FlatFace"
sketch3.AttachmentOffset = App.Placement(Vector(0, 0, 60), App.Rotation())
sketch3.addGeometry([
    Part.Circle(Vector(-37.5, 37.5, 0), Vector(0, 0, 1), 2.5),
    Part.Circle(Vector(37.5, 37.5, 0), Vector(0, 0, 1), 2.5),
    Part.Circle(Vector(37.5, -37.5, 0), Vector(0, 0, 1), 2.5),
    Part.Circle(Vector(-37.5, -37.5, 0), Vector(0, 0, 1), 2.5),
], False)
sketch3.addConstraint([
    Sketcher.Constraint("Equal", 0, 1),
    Sketcher.Constraint("Equal", 1, 2),
    Sketcher.Constraint("Equal", 2, 3),
    Sketcher.Constraint("Symmetric", 0, 3, 2, 3, -1, 1),
    Sketcher.Constraint("Symmetric", 1, 3, 3, 3, -1, 1),
    Sketcher.Constraint("Symmetric", 0, 3, 1, 3, -2),
    Sketcher.Constraint("Diameter", 0, Q("5 mm")),
    Sketcher.Constraint("DistanceX", 0, 3, 1, 3, Q("75 mm")),
    Sketcher.Constraint("DistanceY", 2, 3, 1, 3, Q("75 mm")),
])
pocket2 = body.newObject("PartDesign::Pocket", "Pocket001")
pocket2.Profile = sketch3
pocket2.Length = 20

# Sketch on XZ plane
sketch4 = body.newObject("Sketcher::SketchObject", "Sketch003")
sketch4.AttachmentSupport = (doc.getObject("XZ_Plane"), [""])
sketch4.MapMode = "FlatFace"
sketch4.AttachmentOffset = App.Placement(Vector(0, 0, 60), App.Rotation())
sketch4.addGeometry([
    Part.LineSegment(Vector(-25, 25, 0), Vector(-25, -25, 0)),
    Part.LineSegment(Vector(-25, -25, 0), Vector(25, -25, 0)),
    Part.LineSegment(Vector(25, -25, 0), Vector(25, 25, 0)),
    Part.LineSegment(Vector(25, 25, 0), Vector(-25, 25, 0)),
], False)
sketch4.addConstraint([
    Sketcher.Constraint("Coincident", 0, 2, 1, 1),
    Sketcher.Constraint("Coincident", 1, 2, 2, 1),
    Sketcher.Constraint("Coincident", 2, 2, 3, 1),
    Sketcher.Constraint("Coincident", 3, 2, 0, 1),
    Sketcher.Constraint("Vertical", 0),
    Sketcher.Constraint("Horizontal", 1),
    Sketcher.Constraint("Vertical", 2),
    Sketcher.Constraint("Horizontal", 3),
    Sketcher.Constraint("Symmetric", 0, 2, 2, 2, -1, 1),
    Sketcher.Constraint("Equal", 3, 0),
    Sketcher.Constraint("DistanceX", 1, 1, 1, 2, Q("50 mm")),
])
pocket3 = body.newObject("PartDesign::Pocket", "Pocket002")
pocket3.Profile = sketch4
pocket3.Type = "ThroughAll"

# Sketch on YZ plane
sketch5 = body.newObject("Sketcher::SketchObject", "Sketch004")
sketch5.AttachmentSupport = (doc.getObject("YZ_Plane"), [""])
sketch5.MapMode = "FlatFace"
sketch5.AttachmentOffset = App.Placement(Vector(0, 0, 50), App.Rotation())
sketch5.addGeometry([
    Part.LineSegment(Vector(-55, 45, 0), Vector(-55, 30, 0)),  # 0
    Part.LineSegment(Vector(-55, 30, 0), Vector(-47, 30, 0)),  # 1
    Part.LineSegment(Vector(-47, 30, 0), Vector(-47, 45, 0)),  # 2
    Part.LineSegment(Vector(-47, 45, 0), Vector(-55, 45, 0)),  # 3
    Part.LineSegment(Vector(-55, -30, 0), Vector(-55, -45, 0)),  # 4
    Part.LineSegment(Vector(-55, -45, 0), Vector(-47, -45, 0)),  # 5
    Part.LineSegment(Vector(-47, -45, 0), Vector(-47, -30, 0)),  # 6
    Part.LineSegment(Vector(-47, -30, 0), Vector(-55, -30, 0)),  # 7
], False)
sketch5.addConstraint([
    Sketcher.Constraint("Coincident", 0, 2, 1, 1),
    Sketcher.Constraint("Coincident", 1, 2, 2, 1),
    Sketcher.Constraint("Coincident", 2, 2, 3, 1),
    Sketcher.Constraint("Coincident", 3, 2, 0, 1),
    Sketcher.Constraint("Coincident", 4, 2, 5, 1),
    Sketcher.Constraint("Coincident", 5, 2, 6, 1),
    Sketcher.Constraint("Coincident", 6, 2, 7, 1),
    Sketcher.Constraint("Coincident", 7, 2, 4, 1),
    Sketcher.Constraint("Vertical", 0),
    Sketcher.Constraint("Horizontal", 1),
    Sketcher.Constraint("Vertical", 2),
    Sketcher.Constraint("Horizontal", 3),
    Sketcher.Constraint("Vertical", 4),
    Sketcher.Constraint("Horizontal", 5),
    Sketcher.Constraint("Vertical", 6),
    Sketcher.Constraint("Horizontal", 7),
    Sketcher.Constraint("Symmetric", 3, 2, 4, 2, -1),
    Sketcher.Constraint("Symmetric", 1, 2, 6, 2, -1),
    Sketcher.Constraint("DistanceX", 1, 1, 1, 2, Q("8 mm")),
    Sketcher.Constraint("DistanceY", 0, 2, 0, 1, Q("15 mm")),
    Sketcher.Constraint("DistanceX", 0, 2, -1, 1, Q("55 mm")),
    Sketcher.Constraint("DistanceY", -1, 1, 0, 2, Q("30 mm")),
])
pocket4 = body.newObject("PartDesign::Pocket", "Pocket003")
pocket4.Profile = sketch5
pocket4.Type = "ThroughAll"

doc.recompute()
